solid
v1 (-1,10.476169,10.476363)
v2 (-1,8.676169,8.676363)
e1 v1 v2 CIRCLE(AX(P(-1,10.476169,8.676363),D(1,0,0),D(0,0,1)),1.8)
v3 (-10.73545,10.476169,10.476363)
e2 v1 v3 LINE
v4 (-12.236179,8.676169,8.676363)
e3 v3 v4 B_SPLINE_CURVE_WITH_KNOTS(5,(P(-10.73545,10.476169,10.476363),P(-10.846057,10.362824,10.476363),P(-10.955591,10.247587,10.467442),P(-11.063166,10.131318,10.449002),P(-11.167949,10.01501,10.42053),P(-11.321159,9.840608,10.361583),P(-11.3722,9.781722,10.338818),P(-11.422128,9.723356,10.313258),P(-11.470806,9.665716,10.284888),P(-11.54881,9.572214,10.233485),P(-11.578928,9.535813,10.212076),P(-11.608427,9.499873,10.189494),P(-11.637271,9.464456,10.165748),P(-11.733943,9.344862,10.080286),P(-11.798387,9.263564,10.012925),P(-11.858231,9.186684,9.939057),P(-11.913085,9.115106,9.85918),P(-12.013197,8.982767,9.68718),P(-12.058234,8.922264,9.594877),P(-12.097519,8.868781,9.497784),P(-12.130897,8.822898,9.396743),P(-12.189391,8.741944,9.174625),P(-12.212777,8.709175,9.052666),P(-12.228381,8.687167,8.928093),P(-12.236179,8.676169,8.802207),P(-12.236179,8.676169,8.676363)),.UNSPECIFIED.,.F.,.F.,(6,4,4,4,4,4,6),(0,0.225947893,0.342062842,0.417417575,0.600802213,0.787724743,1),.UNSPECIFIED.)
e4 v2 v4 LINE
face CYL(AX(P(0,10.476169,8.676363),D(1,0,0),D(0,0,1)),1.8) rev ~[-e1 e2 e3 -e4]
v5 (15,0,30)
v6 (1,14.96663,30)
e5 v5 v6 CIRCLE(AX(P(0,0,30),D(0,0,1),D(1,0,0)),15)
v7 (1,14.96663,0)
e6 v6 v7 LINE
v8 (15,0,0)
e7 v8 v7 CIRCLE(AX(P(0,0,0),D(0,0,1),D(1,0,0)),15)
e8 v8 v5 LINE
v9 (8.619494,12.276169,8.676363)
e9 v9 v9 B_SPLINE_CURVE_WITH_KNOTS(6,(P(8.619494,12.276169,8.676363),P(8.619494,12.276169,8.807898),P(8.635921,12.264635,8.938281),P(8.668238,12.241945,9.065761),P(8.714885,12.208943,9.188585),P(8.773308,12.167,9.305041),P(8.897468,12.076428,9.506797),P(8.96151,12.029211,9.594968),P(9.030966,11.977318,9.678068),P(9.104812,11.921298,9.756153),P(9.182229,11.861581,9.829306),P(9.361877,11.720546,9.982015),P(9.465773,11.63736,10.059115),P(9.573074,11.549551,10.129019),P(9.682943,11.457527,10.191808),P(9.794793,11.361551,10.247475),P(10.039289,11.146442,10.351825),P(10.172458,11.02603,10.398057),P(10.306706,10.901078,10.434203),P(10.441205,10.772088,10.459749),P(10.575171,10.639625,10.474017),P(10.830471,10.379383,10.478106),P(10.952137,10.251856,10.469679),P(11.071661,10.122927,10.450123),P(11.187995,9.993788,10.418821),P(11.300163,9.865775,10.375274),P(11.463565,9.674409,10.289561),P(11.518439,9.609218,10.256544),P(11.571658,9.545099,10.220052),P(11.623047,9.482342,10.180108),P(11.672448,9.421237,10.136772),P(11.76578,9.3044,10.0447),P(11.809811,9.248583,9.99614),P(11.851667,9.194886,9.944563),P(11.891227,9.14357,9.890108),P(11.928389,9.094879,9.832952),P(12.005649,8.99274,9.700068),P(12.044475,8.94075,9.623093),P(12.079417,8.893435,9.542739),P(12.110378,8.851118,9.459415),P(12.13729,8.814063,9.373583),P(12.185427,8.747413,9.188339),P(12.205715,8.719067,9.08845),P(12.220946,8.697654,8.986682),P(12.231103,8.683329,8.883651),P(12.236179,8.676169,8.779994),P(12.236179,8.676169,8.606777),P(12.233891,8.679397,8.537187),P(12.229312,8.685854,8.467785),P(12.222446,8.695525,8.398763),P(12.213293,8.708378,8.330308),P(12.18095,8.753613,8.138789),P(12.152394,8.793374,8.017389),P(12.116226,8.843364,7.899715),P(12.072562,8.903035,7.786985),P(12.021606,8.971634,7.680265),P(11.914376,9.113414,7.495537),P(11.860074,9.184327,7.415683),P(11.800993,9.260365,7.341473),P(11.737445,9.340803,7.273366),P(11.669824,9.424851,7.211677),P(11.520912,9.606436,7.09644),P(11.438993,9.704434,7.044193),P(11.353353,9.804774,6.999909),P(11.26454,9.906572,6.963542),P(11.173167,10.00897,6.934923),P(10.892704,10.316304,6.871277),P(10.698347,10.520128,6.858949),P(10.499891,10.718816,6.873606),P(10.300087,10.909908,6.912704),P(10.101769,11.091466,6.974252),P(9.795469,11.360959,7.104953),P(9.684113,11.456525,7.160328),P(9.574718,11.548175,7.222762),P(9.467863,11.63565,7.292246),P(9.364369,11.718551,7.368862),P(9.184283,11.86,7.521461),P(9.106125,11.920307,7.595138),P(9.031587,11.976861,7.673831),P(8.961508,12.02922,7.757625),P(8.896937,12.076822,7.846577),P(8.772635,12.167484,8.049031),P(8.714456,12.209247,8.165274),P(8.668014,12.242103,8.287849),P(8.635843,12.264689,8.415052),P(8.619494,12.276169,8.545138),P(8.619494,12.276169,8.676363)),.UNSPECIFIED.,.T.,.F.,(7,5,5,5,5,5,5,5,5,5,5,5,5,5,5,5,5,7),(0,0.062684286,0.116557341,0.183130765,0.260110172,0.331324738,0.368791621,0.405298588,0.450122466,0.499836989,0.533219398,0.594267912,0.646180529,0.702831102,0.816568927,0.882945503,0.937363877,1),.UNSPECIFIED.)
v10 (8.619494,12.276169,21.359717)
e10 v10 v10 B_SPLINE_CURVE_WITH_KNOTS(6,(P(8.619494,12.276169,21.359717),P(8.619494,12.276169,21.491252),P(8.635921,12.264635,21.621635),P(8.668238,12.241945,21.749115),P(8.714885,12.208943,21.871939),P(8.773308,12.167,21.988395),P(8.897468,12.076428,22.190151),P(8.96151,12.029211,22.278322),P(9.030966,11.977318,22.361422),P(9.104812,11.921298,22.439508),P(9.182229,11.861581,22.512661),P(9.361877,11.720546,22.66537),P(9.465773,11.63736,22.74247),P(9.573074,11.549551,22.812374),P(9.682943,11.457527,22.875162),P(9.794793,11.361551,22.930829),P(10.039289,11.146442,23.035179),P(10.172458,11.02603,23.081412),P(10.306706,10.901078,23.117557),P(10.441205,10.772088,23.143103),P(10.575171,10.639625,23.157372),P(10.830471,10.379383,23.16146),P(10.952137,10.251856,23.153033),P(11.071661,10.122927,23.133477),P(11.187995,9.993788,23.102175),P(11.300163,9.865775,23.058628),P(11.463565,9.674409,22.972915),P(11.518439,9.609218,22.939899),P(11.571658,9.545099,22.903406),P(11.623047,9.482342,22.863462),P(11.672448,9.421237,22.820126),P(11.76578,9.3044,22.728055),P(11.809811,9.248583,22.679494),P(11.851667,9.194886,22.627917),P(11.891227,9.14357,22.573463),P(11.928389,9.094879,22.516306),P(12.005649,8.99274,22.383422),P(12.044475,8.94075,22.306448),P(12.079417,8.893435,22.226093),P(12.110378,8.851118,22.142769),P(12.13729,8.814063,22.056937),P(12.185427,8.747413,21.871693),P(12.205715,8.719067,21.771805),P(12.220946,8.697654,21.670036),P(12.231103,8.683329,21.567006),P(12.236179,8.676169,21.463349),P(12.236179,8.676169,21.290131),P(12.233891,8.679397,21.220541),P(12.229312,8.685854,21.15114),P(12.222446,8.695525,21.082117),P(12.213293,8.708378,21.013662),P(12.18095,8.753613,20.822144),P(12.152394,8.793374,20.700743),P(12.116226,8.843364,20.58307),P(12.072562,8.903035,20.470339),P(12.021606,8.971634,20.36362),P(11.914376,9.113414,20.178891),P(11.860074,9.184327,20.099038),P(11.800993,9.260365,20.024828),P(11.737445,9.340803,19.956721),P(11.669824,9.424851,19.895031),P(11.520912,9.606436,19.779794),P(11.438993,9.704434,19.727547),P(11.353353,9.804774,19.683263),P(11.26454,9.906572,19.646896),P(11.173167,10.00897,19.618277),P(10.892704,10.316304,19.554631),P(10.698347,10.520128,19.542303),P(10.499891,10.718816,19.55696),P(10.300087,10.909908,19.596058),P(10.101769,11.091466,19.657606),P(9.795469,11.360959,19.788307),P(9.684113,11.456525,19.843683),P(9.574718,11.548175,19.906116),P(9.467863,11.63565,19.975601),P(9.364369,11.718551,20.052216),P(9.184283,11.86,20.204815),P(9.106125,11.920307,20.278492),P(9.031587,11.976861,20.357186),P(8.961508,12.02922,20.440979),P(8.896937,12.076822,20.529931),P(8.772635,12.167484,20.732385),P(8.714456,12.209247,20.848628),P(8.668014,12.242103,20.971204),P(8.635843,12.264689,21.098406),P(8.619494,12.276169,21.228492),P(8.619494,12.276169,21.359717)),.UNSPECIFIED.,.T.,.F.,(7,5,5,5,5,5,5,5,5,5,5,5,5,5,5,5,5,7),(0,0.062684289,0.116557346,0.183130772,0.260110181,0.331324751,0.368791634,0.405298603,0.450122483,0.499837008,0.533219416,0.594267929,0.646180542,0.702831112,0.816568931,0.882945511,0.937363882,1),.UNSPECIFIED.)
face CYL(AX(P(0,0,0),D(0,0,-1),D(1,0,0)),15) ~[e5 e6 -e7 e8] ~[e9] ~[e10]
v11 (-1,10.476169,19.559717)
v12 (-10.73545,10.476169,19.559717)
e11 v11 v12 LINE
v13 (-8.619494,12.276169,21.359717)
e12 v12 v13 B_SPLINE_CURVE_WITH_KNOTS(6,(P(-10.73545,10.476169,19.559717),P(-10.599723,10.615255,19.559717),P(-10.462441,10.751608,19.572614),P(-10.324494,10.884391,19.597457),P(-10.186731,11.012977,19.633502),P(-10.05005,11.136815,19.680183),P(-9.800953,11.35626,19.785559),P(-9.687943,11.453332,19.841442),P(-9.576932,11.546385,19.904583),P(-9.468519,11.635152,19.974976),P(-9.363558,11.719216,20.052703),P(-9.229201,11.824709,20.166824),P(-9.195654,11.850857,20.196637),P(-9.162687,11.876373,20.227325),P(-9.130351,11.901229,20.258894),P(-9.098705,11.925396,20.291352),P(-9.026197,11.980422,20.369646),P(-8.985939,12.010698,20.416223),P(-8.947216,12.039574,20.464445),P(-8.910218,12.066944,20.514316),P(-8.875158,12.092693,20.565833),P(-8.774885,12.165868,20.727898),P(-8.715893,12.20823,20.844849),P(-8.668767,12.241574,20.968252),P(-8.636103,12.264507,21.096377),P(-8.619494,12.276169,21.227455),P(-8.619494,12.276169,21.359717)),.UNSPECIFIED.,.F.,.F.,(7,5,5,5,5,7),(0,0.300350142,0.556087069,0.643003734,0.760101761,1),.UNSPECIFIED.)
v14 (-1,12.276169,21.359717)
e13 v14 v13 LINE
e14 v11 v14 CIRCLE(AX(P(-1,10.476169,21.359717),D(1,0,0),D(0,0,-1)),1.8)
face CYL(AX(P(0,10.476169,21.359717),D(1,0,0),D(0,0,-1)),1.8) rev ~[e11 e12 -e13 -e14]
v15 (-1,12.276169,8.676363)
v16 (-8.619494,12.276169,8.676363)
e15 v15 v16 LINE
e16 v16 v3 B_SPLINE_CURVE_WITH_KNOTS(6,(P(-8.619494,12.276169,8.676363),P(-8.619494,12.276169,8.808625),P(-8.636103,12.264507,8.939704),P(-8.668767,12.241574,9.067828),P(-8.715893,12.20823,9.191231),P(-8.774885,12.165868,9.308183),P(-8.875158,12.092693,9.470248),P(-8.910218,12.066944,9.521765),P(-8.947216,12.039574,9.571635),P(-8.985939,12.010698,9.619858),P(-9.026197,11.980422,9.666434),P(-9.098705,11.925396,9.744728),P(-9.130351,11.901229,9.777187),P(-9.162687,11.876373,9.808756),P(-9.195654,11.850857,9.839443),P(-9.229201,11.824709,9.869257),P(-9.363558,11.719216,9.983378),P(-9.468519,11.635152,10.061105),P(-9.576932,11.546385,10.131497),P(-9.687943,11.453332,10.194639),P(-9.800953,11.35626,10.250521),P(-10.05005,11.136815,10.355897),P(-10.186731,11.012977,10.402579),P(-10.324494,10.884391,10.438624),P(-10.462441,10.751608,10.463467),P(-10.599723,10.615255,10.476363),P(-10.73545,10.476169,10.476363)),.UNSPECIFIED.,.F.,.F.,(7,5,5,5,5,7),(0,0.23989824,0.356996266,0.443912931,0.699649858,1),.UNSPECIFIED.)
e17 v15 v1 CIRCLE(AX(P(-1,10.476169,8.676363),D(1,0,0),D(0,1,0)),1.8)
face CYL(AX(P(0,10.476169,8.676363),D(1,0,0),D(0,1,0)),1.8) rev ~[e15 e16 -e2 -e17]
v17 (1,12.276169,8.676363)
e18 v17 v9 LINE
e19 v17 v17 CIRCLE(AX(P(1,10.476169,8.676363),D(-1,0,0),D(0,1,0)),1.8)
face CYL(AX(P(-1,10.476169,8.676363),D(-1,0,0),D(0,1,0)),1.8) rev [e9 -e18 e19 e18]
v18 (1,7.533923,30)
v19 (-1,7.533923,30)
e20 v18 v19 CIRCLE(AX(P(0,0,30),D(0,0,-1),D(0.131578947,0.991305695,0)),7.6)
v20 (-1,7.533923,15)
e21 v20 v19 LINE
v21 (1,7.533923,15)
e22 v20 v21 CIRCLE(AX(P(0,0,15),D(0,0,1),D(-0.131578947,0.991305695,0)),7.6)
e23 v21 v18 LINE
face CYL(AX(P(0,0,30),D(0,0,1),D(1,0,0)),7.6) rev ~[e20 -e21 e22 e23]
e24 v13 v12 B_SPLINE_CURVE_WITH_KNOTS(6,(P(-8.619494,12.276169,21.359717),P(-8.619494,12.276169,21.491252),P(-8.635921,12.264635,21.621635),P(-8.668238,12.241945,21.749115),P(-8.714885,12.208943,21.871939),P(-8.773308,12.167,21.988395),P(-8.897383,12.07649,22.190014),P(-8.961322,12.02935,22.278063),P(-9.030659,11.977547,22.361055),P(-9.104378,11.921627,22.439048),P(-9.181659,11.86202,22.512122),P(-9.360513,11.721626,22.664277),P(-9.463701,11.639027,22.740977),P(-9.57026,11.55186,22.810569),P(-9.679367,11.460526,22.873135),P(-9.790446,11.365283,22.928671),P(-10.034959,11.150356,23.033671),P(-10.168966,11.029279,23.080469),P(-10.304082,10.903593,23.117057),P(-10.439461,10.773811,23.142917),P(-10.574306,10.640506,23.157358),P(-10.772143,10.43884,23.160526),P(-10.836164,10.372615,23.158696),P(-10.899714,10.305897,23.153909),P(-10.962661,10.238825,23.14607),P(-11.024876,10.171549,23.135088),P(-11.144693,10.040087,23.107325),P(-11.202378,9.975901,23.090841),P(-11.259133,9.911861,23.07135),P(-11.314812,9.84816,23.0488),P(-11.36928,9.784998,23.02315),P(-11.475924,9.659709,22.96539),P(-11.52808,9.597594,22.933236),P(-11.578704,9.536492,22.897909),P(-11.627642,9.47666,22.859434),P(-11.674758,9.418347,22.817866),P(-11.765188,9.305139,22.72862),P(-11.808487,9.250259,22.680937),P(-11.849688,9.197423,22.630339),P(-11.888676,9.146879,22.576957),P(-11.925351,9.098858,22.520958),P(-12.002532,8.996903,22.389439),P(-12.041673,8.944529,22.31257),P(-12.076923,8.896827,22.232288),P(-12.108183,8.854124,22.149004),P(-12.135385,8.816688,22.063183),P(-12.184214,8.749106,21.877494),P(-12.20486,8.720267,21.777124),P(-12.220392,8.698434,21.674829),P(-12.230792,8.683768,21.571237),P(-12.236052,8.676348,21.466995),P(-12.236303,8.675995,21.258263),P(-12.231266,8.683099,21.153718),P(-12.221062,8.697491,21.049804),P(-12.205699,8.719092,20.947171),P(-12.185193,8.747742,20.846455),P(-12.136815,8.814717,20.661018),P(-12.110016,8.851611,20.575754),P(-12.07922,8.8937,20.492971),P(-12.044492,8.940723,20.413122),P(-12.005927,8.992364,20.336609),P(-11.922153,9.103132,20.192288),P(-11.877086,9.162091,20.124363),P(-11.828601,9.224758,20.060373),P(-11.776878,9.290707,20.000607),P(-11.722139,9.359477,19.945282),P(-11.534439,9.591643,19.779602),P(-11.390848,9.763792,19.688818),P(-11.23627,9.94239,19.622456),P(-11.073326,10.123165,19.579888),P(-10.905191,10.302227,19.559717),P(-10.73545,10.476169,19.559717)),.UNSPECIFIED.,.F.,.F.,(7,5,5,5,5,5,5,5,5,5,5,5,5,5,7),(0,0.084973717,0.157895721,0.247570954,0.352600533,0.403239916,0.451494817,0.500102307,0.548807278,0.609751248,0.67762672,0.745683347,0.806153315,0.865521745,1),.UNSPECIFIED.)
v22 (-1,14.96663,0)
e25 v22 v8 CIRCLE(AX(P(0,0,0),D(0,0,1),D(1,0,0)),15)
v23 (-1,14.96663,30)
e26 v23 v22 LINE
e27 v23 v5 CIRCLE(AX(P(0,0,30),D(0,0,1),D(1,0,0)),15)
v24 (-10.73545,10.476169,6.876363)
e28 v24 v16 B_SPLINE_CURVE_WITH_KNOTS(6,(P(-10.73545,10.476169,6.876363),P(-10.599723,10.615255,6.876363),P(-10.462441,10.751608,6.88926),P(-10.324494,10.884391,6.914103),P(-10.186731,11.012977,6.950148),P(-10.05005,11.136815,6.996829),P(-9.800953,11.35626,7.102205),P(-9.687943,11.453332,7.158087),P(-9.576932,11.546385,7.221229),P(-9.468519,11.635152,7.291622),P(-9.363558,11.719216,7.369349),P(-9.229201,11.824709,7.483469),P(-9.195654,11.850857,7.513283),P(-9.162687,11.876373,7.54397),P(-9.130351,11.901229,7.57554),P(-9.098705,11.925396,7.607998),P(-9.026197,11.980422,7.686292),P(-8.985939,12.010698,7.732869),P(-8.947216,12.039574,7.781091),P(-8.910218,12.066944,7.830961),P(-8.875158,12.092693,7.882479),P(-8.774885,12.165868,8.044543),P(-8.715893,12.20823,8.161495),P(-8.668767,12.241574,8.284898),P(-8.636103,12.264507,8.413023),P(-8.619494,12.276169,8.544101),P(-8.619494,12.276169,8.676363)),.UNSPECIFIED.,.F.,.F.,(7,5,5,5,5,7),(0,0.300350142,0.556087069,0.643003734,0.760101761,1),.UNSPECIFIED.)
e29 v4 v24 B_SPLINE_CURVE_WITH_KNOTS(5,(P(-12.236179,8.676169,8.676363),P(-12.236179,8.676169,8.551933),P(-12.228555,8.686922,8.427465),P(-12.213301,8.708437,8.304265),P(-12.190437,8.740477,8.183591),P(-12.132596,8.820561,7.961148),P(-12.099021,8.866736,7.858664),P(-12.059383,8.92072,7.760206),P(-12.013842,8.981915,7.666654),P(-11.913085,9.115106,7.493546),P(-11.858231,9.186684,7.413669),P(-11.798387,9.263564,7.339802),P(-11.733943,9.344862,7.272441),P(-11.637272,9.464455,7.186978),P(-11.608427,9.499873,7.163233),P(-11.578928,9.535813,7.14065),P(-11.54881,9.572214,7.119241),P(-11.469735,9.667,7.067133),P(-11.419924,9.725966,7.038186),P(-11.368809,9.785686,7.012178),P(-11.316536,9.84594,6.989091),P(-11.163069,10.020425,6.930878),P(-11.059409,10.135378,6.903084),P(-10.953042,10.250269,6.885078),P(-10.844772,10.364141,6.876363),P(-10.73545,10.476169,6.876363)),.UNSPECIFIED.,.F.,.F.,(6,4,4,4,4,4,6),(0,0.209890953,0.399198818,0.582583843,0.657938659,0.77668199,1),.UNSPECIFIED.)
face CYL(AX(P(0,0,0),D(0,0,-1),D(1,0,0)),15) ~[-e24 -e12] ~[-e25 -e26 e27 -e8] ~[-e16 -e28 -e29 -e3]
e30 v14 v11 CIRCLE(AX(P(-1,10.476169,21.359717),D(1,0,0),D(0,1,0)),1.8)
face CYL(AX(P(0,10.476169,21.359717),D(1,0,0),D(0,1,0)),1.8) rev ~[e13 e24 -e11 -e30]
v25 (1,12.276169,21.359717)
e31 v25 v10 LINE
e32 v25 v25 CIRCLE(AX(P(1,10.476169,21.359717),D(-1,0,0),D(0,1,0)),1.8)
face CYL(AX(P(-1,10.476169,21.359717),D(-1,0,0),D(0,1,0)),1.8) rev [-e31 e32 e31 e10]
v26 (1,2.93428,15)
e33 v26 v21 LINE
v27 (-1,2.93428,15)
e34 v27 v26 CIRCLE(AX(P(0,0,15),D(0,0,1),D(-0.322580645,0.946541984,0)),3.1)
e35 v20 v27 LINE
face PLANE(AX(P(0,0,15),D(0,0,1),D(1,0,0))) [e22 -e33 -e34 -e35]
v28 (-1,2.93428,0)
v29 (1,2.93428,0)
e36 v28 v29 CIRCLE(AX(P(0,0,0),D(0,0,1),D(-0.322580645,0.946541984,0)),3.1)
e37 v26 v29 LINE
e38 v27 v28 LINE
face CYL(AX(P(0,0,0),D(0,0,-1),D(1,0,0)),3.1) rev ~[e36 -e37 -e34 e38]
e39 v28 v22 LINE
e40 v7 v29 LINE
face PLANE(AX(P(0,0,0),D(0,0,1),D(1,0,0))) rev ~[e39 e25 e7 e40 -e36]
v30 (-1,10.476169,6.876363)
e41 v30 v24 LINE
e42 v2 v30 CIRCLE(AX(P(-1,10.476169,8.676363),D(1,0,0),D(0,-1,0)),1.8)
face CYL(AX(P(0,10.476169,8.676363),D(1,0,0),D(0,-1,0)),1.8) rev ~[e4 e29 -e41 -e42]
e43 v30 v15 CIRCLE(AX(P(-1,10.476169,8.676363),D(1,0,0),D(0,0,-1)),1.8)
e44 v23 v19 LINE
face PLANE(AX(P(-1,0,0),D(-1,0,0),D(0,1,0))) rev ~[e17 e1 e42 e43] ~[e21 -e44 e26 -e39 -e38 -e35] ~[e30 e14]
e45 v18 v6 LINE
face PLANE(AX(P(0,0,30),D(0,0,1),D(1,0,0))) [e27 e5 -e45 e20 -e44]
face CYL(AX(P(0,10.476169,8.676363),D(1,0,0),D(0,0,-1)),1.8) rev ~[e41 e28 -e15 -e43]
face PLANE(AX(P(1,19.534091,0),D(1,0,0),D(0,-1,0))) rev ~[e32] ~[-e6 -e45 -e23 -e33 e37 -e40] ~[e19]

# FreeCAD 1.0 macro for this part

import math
import FreeCAD as App
import Part
import Sketcher
from FreeCAD import Vector
Q = App.Units.Quantity

doc = App.newDocument("Part")
params = doc.addObject("Spreadsheet::Sheet", "Params")
for row, (alias, value) in enumerate([
    ("sketch1_diameter", "30 mm"),
    ("pad1_length", "30 mm"),
    ("sketch2_diameter", "15.2 mm"),
    ("pocket1_length", "15 mm"),
    ("sketch3_diameter", "6.2 mm"),
    ("pocket2_length", "25.4 mm"),
    ("sketch4_width", "2 mm"),
    ("pocket3_length", "50.8 mm"),
    ("sketch5_radius", "1.8 mm"),
    ("sketch6_diameter", "3.6 mm"),
    ("pocket5_length", "25.4 mm"),
], start=1):
    params.set(f"A{row}", alias)
    params.set(f"B{row}", "=" + value)
    params.setAlias(f"B{row}", alias)

body = doc.addObject("PartDesign::Body", "Body")

sketch1 = body.newObject("Sketcher::SketchObject", "Sketch")
sketch1.AttachmentSupport = (doc.getObject("XY_Plane"), [""])
sketch1.MapMode = "FlatFace"
sketch1.addGeometry(Part.Circle(Vector(0, 0, 0), Vector(0, 0, 1), 15), False)
sketch1.addConstraint([
    Sketcher.Constraint("Coincident", 0, 3, -1, 1),
    Sketcher.Constraint("Diameter", 0, Q("30 mm")),
])
sketch1.setExpression("Constraints[1]", "Params.sketch1_diameter")
pad1 = body.newObject("PartDesign::Pad", "Pad")
pad1.Profile = sketch1
pad1.setExpression("Length", "Params.pad1_length")

sketch2 = body.newObject("Sketcher::SketchObject", "Sketch001")
sketch2.AttachmentSupport = (doc.getObject("XY_Plane"), [""])
sketch2.MapMode = "FlatFace"
sketch2.AttachmentOffset = App.Placement(Vector(0, 0, 30), App.Rotation())
sketch2.addGeometry(Part.Circle(Vector(0, 0, 0), Vector(0, 0, 1), 8), False)
sketch2.addConstraint([
    Sketcher.Constraint("Coincident", 0, 3, -1, 1),
    Sketcher.Constraint("Diameter", 0, Q("15.2 mm")),
])
sketch2.setExpression("Constraints[1]", "Params.sketch2_diameter")
pocket1 = body.newObject("PartDesign::Pocket", "Pocket")
pocket1.Profile = sketch2
pocket1.setExpression("Length", "Params.pocket1_length")

sketch3 = body.newObject("Sketcher::SketchObject", "Sketch002")
sketch3.AttachmentSupport = (doc.getObject("XY_Plane"), [""])
sketch3.MapMode = "FlatFace"
sketch3.addGeometry(Part.Circle(Vector(0, 0, 0), Vector(0, 0, 1), 3.1), False)
sketch3.addConstraint([
    Sketcher.Constraint("Coincident", 0, 3, -1, 1),
    Sketcher.Constraint("Diameter", 0, Q("6.2 mm")),
])
sketch3.setExpression("Constraints[1]", "Params.sketch3_diameter")
pocket2 = body.newObject("PartDesign::Pocket", "Pocket001")
pocket2.Profile = sketch3
pocket2.setExpression("Length", "Params.pocket2_length")
pocket2.Reversed = True

sketch4 = body.newObject("Sketcher::SketchObject", "Sketch003")
sketch4.AttachmentSupport = (doc.getObject("XY_Plane"), [""])
sketch4.MapMode = "FlatFace"
sketch4.addGeometry([
    Part.LineSegment(Vector(-1, 19.5, 0), Vector(1, 19.5, 0)),
    Part.LineSegment(Vector(1, 19.5, 0), Vector(1, 0, 0)),
    Part.LineSegment(Vector(1, 0, 0), Vector(-1, 0, 0)),
    Part.LineSegment(Vector(-1, 0, 0), Vector(-1, 19.5, 0)),
], False)
sketch4.addConstraint([
    Sketcher.Constraint("Coincident", 0, 2, 1, 1),
    Sketcher.Constraint("Coincident", 1, 2, 2, 1),
    Sketcher.Constraint("Coincident", 2, 2, 3, 1),
    Sketcher.Constraint("Coincident", 3, 2, 0, 1),
    Sketcher.Constraint("Horizontal", 0),
    Sketcher.Constraint("Vertical", 1),
    Sketcher.Constraint("Horizontal", 2),
    Sketcher.Constraint("Vertical", 3),
    Sketcher.Constraint("Symmetric", 1, 2, 2, 2, -1, 1),
    Sketcher.Constraint("DistanceX", 0, 1, 0, 2, Q("2 mm")),
    Sketcher.Constraint("DistanceY", 1, 2, 1, 1, Q("19.534091 mm")),
])
sketch4.setExpression("Constraints[9]", "Params.sketch4_width")
pocket3 = body.newObject("PartDesign::Pocket", "Pocket002")
pocket3.Profile = sketch4
pocket3.setExpression("Length", "Params.pocket3_length")
pocket3.Reversed = True

sketch5 = body.newObject("Sketcher::SketchObject", "Sketch004")
sketch5.AttachmentSupport = (doc.getObject("YZ_Plane"), [""])
sketch5.MapMode = "FlatFace"
sketch5.addGeometry([
    Part.ArcOfCircle(Part.Circle(Vector(10.5, 8.7, 0), Vector(0, 0, 1), 1.8), math.radians(-90), math.radians(0)),
    Part.ArcOfCircle(Part.Circle(Vector(10.5, 8.7, 0), Vector(0, 0, 1), 1.8), math.radians(0), math.radians(90)),
    Part.ArcOfCircle(Part.Circle(Vector(10.5, 8.7, 0), Vector(0, 0, 1), 1.8), math.radians(90), math.radians(180)),
    Part.ArcOfCircle(Part.Circle(Vector(10.5, 8.7, 0), Vector(0, 0, 1), 1.8), math.radians(180), math.radians(270)),
    Part.ArcOfCircle(Part.Circle(Vector(10.5, 21.4, 0), Vector(0, 0, 1), 1.8), math.radians(0), math.radians(270)),
    Part.ArcOfCircle(Part.Circle(Vector(10.5, 21.4, 0), Vector(0, 0, 1), 1.8), math.radians(-90), math.radians(0)),
], False)
sketch5.addConstraint([
    Sketcher.Constraint("Tangent", 0, 2, 1, 1),
    Sketcher.Constraint("Tangent", 1, 2, 2, 1),
    Sketcher.Constraint("Tangent", 2, 2, 3, 1),
    Sketcher.Constraint("Tangent", 3, 2, 0, 1),
    Sketcher.Constraint("Tangent", 4, 1, 5, 2),
    Sketcher.Constraint("Coincident", 5, 1, 4, 2),
    Sketcher.Constraint("Equal", 0, 1),
    Sketcher.Constraint("Equal", 3, 4),
    Sketcher.Constraint("Horizontal", 3, 3, 0, 2),
    Sketcher.Constraint("Horizontal", 0, 2, 2, 2),
    Sketcher.Constraint("Horizontal", 5, 3, 4, 1),
    Sketcher.Constraint("Vertical", 3, 3, 4, 3),
    Sketcher.Constraint("Vertical", 5, 3, 1, 2),
    Sketcher.Constraint("Vertical", 1, 2, 3, 2),
    Sketcher.Constraint("Vertical", 3, 2, 5, 1),
    Sketcher.Constraint("Radius", 0, Q("1.8 mm")),
    Sketcher.Constraint("DistanceX", -1, 1, 0, 3, Q("10.476169 mm")),
    Sketcher.Constraint("DistanceY", -1, 1, 0, 3, Q("8.676363 mm")),
    Sketcher.Constraint("DistanceY", -1, 1, 4, 3, Q("21.359717 mm")),
])
sketch5.setExpression("Constraints[15]", "Params.sketch5_radius")
pocket4 = body.newObject("PartDesign::Pocket", "Pocket003")
pocket4.Profile = sketch5
pocket4.Type = "ThroughAll"

sketch6 = body.newObject("Sketcher::SketchObject", "Sketch005")
sketch6.AttachmentSupport = (doc.getObject("YZ_Plane"), [""])
sketch6.MapMode = "FlatFace"
sketch6.AttachmentOffset = App.Placement(Vector(0, 0, -1), App.Rotation())
sketch6.addGeometry([
    Part.Circle(Vector(10.5, 8.7, 0), Vector(0, 0, 1), 1.8),
    Part.Circle(Vector(10.5, 21.4, 0), Vector(0, 0, 1), 1.8),
], False)
sketch6.addConstraint([
    Sketcher.Constraint("Equal", 0, 1),
    Sketcher.Constraint("Vertical", 0, 3, 1, 3),
    Sketcher.Constraint("Diameter", 0, Q("3.6 mm")),
    Sketcher.Constraint("DistanceX", -1, 1, 0, 3, Q("10.476169 mm")),
    Sketcher.Constraint("DistanceY", -1, 1, 0, 3, Q("8.676363 mm")),
    Sketcher.Constraint("DistanceY", -1, 1, 1, 3, Q("21.359717 mm")),
])
sketch6.setExpression("Constraints[2]", "Params.sketch6_diameter")
pocket5 = body.newObject("PartDesign::Pocket", "Pocket004")
pocket5.Profile = sketch6
pocket5.setExpression("Length", "Params.pocket5_length")
pocket5.Reversed = True

doc.recompute()
